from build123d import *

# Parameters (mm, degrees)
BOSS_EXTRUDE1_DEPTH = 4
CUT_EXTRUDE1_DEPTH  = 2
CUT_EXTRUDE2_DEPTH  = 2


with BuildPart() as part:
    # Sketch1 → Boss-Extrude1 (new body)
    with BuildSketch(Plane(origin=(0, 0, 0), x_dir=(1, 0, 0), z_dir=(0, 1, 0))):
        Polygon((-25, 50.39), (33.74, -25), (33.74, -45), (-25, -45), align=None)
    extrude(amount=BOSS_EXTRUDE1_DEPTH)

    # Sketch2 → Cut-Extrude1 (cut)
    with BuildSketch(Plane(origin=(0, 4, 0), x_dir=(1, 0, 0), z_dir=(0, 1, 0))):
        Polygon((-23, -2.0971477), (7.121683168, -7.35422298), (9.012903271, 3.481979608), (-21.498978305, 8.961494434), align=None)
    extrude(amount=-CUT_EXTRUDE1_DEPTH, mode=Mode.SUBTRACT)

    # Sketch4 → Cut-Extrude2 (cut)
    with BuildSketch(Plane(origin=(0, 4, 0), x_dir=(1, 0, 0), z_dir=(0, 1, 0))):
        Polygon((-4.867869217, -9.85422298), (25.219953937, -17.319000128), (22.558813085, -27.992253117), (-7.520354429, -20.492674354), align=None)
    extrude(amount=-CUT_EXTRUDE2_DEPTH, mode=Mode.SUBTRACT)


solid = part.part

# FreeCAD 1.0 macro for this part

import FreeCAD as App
import Part
import Sketcher
Q = App.Units.Quantity


def add_polygon(sketch, points):
    """Adds a closed chain of lines whose ends are joined by coincident constraints."""
    first, n = sketch.GeometryCount, len(points)
    for a, b in zip(points, points[1:] + points[:1]):
        sketch.addGeometry(Part.LineSegment(App.Vector(*a, 0), App.Vector(*b, 0)), False)
    for i in range(n):
        sketch.addConstraint(Sketcher.Constraint("Coincident", first + i, 2, first + (i + 1) % n, 1))

doc = App.newDocument("Part")
body = doc.addObject("PartDesign::Body", "Body")

sketch1 = body.newObject("Sketcher::SketchObject", "Sketch")
sketch1.AttachmentSupport = (doc.getObject("XZ_Plane"), [""])
sketch1.MapMode = "FlatFace"
add_polygon(sketch1, [(34, 25), (-25, -50), (-25, 45), (34, 45)])
sketch1.addConstraint([
    Sketcher.Constraint("Vertical", 1),
    Sketcher.Constraint("Horizontal", 2),
    Sketcher.Constraint("Vertical", 3),
    Sketcher.Constraint("DistanceY", 3, 2, 3, 1, Q("20 mm")),
    Sketcher.Constraint("DistanceX", 0, 2, -1, 1, Q("25 mm")),
    Sketcher.Constraint("DistanceY", -1, 1, 1, 2, Q("45 mm")),
    Sketcher.Constraint("DistanceX", 2, 1, 2, 2, Q("58.74 mm")),
    Sketcher.Constraint("DistanceY", 1, 1, 1, 2, Q("95.39 mm")),
])
pad1 = body.newObject("PartDesign::Pad", "Pad")
pad1.Profile = sketch1
pad1.Length = 4
pad1.Reversed = True

sketch2 = body.newObject("Sketcher::SketchObject", "Sketch001")
sketch2.AttachmentSupport = (doc.getObject("XZ_Plane"), [""])
sketch2.MapMode = "FlatFace"
sketch2.AttachmentOffset = App.Placement(App.Vector(0, 0, -4), App.Rotation())
add_polygon(sketch2, [(-23, 2), (7, 7), (9, -3), (-21, -9)])
sketch2.addConstraint([
    Sketcher.Constraint("Perpendicular", 0, 1),
    Sketcher.Constraint("Distance", 1, Q("11 mm")),
    Sketcher.Constraint("Distance", 2, Q("31 mm")),
    Sketcher.Constraint("DistanceX", 3, 2, -1, 1, Q("23 mm")),
    Sketcher.Constraint("Angle", 0, Q("9.9 deg")),
    Sketcher.Constraint("DistanceY", 1, 2, -1, 1, Q("3.48198 mm")),
    Sketcher.Constraint("DistanceX", 2, 2, -1, 1, Q("21.498978 mm")),
    Sketcher.Constraint("DistanceX", 2, 2, 1, 2, Q("30.511882 mm")),
])
pocket1 = body.newObject("PartDesign::Pocket", "Pocket")
pocket1.Profile = sketch2
pocket1.Length = 2
pocket1.Reversed = True

sketch3 = body.newObject("Sketcher::SketchObject", "Sketch002")
sketch3.AttachmentSupport = (doc.getObject("XZ_Plane"), [""])
sketch3.MapMode = "FlatFace"
sketch3.AttachmentOffset = App.Placement(App.Vector(0, 0, -4), App.Rotation())
add_polygon(sketch3, [(25.219954, 17.319), (-4.867869, 9.854223), (-7.520354, 20.492674), (22.558813, 27.992253)])
sketch3.addConstraint([
    Sketcher.Constraint("Distance", 0, Q("31 mm")),
    Sketcher.Constraint("Distance", 2, Q("31 mm")),
    Sketcher.Constraint("Distance", 3, Q("11 mm")),
    Sketcher.Constraint("DistanceY", -1, 1, 3, 2, Q("17.319 mm")),
    Sketcher.Constraint("Distance", 1, Q("10.964138 mm")),
    Sketcher.Constraint("DistanceX", 0, 2, -1, 1, Q("4.867869 mm")),
    Sketcher.Constraint("DistanceY", 0, 2, 1, 2, Q("10.638451 mm")),
    Sketcher.Constraint("DistanceY", 1, 2, 2, 2, Q("7.499579 mm")),
])
pocket2 = body.newObject("PartDesign::Pocket", "Pocket001")
pocket2.Profile = sketch3
pocket2.Length = 2
pocket2.Reversed = True

doc.recompute()
